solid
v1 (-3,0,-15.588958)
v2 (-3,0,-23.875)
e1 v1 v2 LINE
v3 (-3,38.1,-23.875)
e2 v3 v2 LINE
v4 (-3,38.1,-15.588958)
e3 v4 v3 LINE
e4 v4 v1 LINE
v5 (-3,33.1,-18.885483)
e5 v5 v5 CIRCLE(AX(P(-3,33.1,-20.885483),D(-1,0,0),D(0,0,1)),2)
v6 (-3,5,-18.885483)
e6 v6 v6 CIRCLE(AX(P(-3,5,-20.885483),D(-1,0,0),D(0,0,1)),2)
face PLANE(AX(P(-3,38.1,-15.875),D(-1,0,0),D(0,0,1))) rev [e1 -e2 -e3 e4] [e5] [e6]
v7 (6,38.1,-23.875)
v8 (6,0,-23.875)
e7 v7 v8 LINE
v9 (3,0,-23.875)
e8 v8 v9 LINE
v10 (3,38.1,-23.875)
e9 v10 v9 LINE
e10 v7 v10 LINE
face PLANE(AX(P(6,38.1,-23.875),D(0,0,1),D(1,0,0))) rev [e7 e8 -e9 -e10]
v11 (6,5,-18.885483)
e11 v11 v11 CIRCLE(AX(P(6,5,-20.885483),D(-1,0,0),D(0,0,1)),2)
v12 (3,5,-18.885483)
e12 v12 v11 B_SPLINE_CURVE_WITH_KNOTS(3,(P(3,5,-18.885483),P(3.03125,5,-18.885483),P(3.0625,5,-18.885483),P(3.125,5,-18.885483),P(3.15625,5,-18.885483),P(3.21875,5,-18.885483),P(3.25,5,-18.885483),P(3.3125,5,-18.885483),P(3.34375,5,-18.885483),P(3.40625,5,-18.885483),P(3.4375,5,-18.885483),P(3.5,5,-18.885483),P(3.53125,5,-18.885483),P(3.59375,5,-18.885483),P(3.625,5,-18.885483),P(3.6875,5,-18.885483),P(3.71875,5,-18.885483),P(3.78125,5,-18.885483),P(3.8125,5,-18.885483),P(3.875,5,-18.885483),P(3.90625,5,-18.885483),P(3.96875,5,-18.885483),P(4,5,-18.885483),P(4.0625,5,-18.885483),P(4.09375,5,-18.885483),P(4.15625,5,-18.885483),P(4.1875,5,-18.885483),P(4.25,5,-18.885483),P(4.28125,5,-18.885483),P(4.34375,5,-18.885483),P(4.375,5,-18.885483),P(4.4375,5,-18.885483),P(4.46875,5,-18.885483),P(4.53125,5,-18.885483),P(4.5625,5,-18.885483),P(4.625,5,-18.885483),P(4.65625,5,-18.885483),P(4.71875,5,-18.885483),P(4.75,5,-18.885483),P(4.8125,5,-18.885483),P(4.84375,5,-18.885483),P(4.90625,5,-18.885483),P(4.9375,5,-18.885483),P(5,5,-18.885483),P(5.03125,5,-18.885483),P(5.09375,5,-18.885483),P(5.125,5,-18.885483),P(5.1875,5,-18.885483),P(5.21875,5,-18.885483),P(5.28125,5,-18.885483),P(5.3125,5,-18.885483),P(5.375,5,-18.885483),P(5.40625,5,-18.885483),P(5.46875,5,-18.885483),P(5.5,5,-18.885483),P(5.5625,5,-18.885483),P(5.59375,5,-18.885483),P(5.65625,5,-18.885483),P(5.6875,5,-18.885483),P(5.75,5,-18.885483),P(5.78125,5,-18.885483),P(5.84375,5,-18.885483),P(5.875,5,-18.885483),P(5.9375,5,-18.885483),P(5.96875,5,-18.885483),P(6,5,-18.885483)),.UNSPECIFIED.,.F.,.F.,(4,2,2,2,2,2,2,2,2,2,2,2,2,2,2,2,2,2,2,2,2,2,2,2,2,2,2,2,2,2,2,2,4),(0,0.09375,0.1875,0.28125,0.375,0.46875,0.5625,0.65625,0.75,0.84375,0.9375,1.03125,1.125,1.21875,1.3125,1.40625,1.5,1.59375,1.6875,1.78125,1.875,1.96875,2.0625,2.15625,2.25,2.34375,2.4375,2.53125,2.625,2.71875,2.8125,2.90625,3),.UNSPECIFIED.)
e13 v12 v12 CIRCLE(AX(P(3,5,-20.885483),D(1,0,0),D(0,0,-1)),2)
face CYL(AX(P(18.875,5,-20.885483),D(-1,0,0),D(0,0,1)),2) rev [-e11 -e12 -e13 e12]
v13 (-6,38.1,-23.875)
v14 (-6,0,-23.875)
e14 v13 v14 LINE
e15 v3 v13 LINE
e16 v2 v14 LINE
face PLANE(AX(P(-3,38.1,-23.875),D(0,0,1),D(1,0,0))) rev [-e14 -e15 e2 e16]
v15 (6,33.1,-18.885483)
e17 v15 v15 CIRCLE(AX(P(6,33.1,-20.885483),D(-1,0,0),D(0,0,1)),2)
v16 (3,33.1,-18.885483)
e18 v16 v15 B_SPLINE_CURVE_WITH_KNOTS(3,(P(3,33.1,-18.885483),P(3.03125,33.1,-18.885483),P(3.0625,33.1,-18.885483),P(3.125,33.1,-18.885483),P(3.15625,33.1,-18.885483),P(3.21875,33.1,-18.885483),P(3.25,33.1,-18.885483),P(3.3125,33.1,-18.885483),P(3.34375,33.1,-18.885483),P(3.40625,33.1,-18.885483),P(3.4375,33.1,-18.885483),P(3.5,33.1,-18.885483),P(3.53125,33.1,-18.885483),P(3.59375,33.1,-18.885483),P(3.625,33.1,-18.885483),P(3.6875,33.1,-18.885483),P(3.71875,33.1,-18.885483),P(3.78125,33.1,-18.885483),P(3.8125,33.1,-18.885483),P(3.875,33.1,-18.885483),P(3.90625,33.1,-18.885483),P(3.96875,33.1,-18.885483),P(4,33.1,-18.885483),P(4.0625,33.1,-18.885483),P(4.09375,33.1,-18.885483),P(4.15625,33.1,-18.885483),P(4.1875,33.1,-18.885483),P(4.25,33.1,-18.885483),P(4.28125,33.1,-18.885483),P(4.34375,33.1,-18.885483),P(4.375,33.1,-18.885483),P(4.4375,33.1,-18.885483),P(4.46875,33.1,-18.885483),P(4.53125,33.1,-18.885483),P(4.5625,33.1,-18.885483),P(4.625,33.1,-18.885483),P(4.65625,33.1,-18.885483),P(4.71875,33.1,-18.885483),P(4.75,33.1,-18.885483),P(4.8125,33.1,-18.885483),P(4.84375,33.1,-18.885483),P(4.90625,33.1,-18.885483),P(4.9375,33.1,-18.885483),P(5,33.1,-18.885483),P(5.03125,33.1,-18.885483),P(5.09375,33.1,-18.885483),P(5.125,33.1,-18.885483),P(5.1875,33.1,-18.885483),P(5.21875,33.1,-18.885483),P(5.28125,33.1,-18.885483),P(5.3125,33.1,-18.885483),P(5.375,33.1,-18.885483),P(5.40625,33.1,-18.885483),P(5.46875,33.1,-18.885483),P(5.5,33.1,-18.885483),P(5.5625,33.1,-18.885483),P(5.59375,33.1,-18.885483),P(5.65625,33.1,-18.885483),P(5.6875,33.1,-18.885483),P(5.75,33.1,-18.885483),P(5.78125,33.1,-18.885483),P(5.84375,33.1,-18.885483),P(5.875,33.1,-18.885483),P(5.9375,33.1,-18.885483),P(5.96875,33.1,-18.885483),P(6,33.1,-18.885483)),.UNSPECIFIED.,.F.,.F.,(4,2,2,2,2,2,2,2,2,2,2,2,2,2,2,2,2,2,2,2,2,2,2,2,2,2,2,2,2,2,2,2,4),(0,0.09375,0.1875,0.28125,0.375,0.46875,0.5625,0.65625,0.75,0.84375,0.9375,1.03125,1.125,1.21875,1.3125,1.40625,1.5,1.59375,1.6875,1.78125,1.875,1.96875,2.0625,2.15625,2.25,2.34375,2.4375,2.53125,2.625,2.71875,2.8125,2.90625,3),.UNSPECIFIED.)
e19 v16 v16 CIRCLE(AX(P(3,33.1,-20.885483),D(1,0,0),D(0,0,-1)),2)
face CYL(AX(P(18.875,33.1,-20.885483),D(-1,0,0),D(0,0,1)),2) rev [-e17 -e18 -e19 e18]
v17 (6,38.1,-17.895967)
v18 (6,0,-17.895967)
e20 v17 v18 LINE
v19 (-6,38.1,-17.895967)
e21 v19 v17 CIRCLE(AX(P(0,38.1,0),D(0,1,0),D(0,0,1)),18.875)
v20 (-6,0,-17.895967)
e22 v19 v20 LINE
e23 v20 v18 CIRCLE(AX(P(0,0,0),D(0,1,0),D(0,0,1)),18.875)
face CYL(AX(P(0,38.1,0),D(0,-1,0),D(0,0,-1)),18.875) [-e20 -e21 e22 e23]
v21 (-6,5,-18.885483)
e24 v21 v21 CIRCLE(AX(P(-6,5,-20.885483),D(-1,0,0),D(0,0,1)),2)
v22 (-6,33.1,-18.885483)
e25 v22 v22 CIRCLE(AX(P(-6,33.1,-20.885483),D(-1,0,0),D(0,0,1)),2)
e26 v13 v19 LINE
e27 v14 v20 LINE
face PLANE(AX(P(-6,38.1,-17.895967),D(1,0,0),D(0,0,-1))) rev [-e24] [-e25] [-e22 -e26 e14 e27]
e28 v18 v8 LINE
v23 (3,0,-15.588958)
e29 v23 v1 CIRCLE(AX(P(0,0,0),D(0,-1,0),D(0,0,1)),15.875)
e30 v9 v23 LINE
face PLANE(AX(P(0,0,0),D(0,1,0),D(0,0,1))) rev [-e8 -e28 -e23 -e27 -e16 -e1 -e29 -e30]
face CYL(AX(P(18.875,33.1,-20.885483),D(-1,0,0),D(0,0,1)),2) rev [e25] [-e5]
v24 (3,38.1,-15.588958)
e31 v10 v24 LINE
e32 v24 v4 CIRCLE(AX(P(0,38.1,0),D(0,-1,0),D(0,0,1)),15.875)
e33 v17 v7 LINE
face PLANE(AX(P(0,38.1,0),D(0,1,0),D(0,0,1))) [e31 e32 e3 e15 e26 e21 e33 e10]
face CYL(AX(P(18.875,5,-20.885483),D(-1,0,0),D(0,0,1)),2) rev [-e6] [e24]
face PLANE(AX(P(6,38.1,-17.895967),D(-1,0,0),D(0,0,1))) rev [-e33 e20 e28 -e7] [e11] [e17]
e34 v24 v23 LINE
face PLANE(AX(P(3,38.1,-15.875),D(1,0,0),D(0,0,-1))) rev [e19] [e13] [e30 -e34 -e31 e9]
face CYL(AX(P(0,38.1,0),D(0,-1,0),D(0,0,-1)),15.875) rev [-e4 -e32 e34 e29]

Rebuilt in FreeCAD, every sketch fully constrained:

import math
import FreeCAD as App
import Part
import Sketcher
from FreeCAD import Vector

doc = App.newDocument("Part")
params = doc.addObject("Spreadsheet::Sheet", "Params")
for row, (alias, value) in enumerate([
    ("sketch1_width", "3 mm"),
    ("pad1_length", "38.1 mm"),
    ("sketch2_diameter", "4 mm"),
], start=1):
    params.set(f"A{row}", alias)
    params.set(f"B{row}", "=" + value)
    params.setAlias(f"B{row}", alias)

body = doc.addObject("PartDesign::Body", "Body")

# Sketch on XZ plane
sketch1 = doc.addObject("Sketcher::SketchObject", "Sketch")
body.addObject(sketch1)
sketch1.AttachmentSupport = (doc.XZ_Plane, [""])
sketch1.MapMode = "FlatFace"
sketch1.addGeometry(Part.LineSegment(Vector(6, -23.875, 0), Vector(3, -23.875, 0)), False)
sketch1.addGeometry(Part.LineSegment(Vector(3, -23.875, 0), Vector(3, -15.588958, 0)), False)
sketch1.addGeometry(Part.ArcOfCircle(Part.Circle(Vector(0, 0, 0), Vector(0, 0, 1), 15.875), math.radians(-79.106947), math.radians(259.106947)), False)
sketch1.addGeometry(Part.LineSegment(Vector(-3, -15.588958, 0), Vector(-3, -23.875, 0)), False)
sketch1.addGeometry(Part.LineSegment(Vector(-3, -23.875, 0), Vector(-6, -23.875, 0)), False)
sketch1.addGeometry(Part.LineSegment(Vector(-6, -23.875, 0), Vector(-6, -17.895967, 0)), False)
sketch1.addGeometry(Part.ArcOfCircle(Part.Circle(Vector(0, 0, 0), Vector(0, 0, 1), 18.875), math.radians(-71.465187), math.radians(251.465187)), False)
sketch1.addGeometry(Part.LineSegment(Vector(6, -17.895967, 0), Vector(6, -23.875, 0)), False)
sketch1.addConstraint(Sketcher.Constraint("Coincident", 0, 2, 1, 1))
sketch1.addConstraint(Sketcher.Constraint("Coincident", 1, 2, 2, 1))
sketch1.addConstraint(Sketcher.Constraint("Coincident", 2, 2, 3, 1))
sketch1.addConstraint(Sketcher.Constraint("Coincident", 3, 2, 4, 1))
sketch1.addConstraint(Sketcher.Constraint("Coincident", 4, 2, 5, 1))
sketch1.addConstraint(Sketcher.Constraint("Coincident", 5, 2, 6, 2))
sketch1.addConstraint(Sketcher.Constraint("Coincident", 6, 1, 7, 1))
sketch1.addConstraint(Sketcher.Constraint("Coincident", 7, 2, 0, 1))
sketch1.addConstraint(Sketcher.Constraint("Horizontal", 0))
sketch1.addConstraint(Sketcher.Constraint("Vertical", 1))
sketch1.addConstraint(Sketcher.Constraint("Vertical", 3))
sketch1.addConstraint(Sketcher.Constraint("Horizontal", 4))
sketch1.addConstraint(Sketcher.Constraint("Vertical", 5))
sketch1.addConstraint(Sketcher.Constraint("Vertical", 7))
sketch1.addConstraint(Sketcher.Constraint("Coincident", 2, 3, -1, 1))
sketch1.addConstraint(Sketcher.Constraint("Coincident", 6, 3, -1, 1))
sketch1.addConstraint(Sketcher.Constraint("Symmetric", 0, 2, 3, 2, -2))
sketch1.addConstraint(Sketcher.Constraint("Horizontal", 5, 2, 6, 1))
sketch1.addConstraint(Sketcher.Constraint("DistanceX", 0, 2, 0, 1, 3.0))
sketch1.addConstraint(Sketcher.Constraint("DistanceX", -1, 1, 0, 2, 3.0))
sketch1.addConstraint(Sketcher.Constraint("Radius", 2, 15.875))
sketch1.addConstraint(Sketcher.Constraint("Radius", 6, 18.875))
sketch1.addConstraint(Sketcher.Constraint("DistanceY", 0, 2, -1, 1, 23.875))
sketch1.setExpression("Constraints[18]", "Params.sketch1_width")
pad1 = doc.addObject("PartDesign::Pad", "Pad")
body.addObject(pad1)
pad1.Profile = sketch1
pad1.setExpression("Length", "Params.pad1_length")
pad1.Reversed = True

# Sketch on YZ plane
sketch2 = doc.addObject("Sketcher::SketchObject", "Sketch001")
body.addObject(sketch2)
sketch2.AttachmentSupport = (doc.YZ_Plane, [""])
sketch2.MapMode = "FlatFace"
sketch2.AttachmentOffset = App.Placement(Vector(0, 0, -6), App.Rotation())
sketch2.addGeometry(Part.Circle(Vector(33.1, -20.885483, 0), Vector(0, 0, 1), 2), False)
sketch2.addGeometry(Part.Circle(Vector(5, -20.885483, 0), Vector(0, 0, 1), 2), False)
sketch2.addConstraint(Sketcher.Constraint("Equal", 0, 1))
sketch2.addConstraint(Sketcher.Constraint("Horizontal", 0, 3, 1, 3))
sketch2.addConstraint(Sketcher.Constraint("Diameter", 0, 4.0))
sketch2.addConstraint(Sketcher.Constraint("DistanceX", -1, 1, 1, 3, 5.0))
sketch2.addConstraint(Sketcher.Constraint("DistanceX", -1, 1, 0, 3, 33.1))
sketch2.addConstraint(Sketcher.Constraint("DistanceY", 0, 3, -1, 1, 20.885483))
sketch2.setExpression("Constraints[2]", "Params.sketch2_diameter")
pocket1 = doc.addObject("PartDesign::Pocket", "Pocket")
body.addObject(pocket1)
pocket1.Profile = sketch2
pocket1.Type = "ThroughAll"
pocket1.Reversed = True

doc.recompute()
